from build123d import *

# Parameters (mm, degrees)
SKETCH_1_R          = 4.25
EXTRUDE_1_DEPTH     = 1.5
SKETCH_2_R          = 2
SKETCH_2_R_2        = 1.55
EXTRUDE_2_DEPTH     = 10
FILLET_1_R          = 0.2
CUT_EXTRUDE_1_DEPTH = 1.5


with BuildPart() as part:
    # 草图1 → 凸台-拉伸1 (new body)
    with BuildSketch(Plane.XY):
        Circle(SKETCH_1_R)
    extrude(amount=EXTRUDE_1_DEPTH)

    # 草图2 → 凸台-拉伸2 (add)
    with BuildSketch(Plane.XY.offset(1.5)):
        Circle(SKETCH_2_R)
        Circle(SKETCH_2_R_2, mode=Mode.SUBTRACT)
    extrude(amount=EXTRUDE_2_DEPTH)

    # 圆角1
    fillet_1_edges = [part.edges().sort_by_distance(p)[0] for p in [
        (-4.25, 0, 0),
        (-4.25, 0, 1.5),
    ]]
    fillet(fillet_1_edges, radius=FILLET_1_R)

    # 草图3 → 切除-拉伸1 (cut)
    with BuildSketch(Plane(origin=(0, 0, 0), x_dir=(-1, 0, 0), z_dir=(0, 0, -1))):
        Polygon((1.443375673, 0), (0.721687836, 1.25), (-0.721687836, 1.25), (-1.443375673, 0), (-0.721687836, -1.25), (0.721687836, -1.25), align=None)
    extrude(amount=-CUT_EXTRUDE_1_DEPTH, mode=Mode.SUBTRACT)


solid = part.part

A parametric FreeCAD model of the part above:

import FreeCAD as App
import Part
import Sketcher

V = App.Vector
Q = App.Units.Quantity


def edges_at(feature, points):
    """Names of the edges that pass closest to the given points."""
    edges = feature.Shape.Edges
    near = lambda p: min(range(len(edges)), key=lambda i: edges[i].distToShape(Part.Vertex(*p))[0])
    return sorted({f"Edge{near(p) + 1}" for p in points})

doc = App.newDocument("Part")
body = doc.addObject("PartDesign::Body", "Body")

# Sketch on XY plane
sketch1 = body.newObject("Sketcher::SketchObject", "Sketch")
sketch1.AttachmentSupport = (doc.getObject("XY_Plane"), [""])
sketch1.MapMode = "FlatFace"
sketch1.addGeometry(Part.Circle(V(0, 0, 0), V(0, 0, 1), 4.2), False)
sketch1.addConstraint([
    Sketcher.Constraint("Coincident", 0, 3, -1, 1),
    Sketcher.Constraint("Diameter", 0, 8.5),
])
pad1 = body.newObject("PartDesign::Pad", "Pad")
pad1.Profile = sketch1
pad1.Length = 1.5

# Sketch on XY plane
sketch2 = body.newObject("Sketcher::SketchObject", "Sketch001")
sketch2.AttachmentSupport = (doc.getObject("XY_Plane"), [""])
sketch2.MapMode = "FlatFace"
sketch2.AttachmentOffset = App.Placement(V(0, 0, 1.5), App.Rotation())
sketch2.addGeometry([
    Part.Circle(V(0, 0, 0), V(0, 0, 1), 2),
    Part.Circle(V(0, 0, 0), V(0, 0, 1), 1.6),
], False)
sketch2.addConstraint([
    Sketcher.Constraint("Coincident", 0, 3, -1, 1),
    Sketcher.Constraint("Coincident", 1, 3, -1, 1),
    Sketcher.Constraint("Diameter", 0, 4.0),
    Sketcher.Constraint("Diameter", 1, 3.1),
])
pad2 = body.newObject("PartDesign::Pad", "Pad001")
pad2.Profile = sketch2
pad2.Length = 10
doc.recompute()

fillet = body.newObject("PartDesign::Fillet", "Fillet")
fillet.Base = (pad2, edges_at(pad2, [(-4.25, 0, 0), (-4.25, 0, 1.5)]))
fillet.Radius = 0.2

# Sketch on XY plane
sketch3 = body.newObject("Sketcher::SketchObject", "Sketch002")
sketch3.AttachmentSupport = (doc.getObject("XY_Plane"), [""])
sketch3.MapMode = "FlatFace"
sketch3.addGeometry([
    Part.LineSegment(V(-1.4, 0, 0), V(-0.7, 1.2, 0)),  # 0
    Part.LineSegment(V(-0.7, 1.2, 0), V(0.7, 1.2, 0)),  # 1
    Part.LineSegment(V(0.7, 1.2, 0), V(1.4, 0, 0)),  # 2
    Part.LineSegment(V(1.4, 0, 0), V(0.7, -1.2, 0)),  # 3
    Part.LineSegment(V(0.7, -1.2, 0), V(-0.7, -1.2, 0)),  # 4
    Part.LineSegment(V(-0.7, -1.2, 0), V(-1.4, 0, 0)),  # 5
], False)
sketch3.addConstraint([
    Sketcher.Constraint("Coincident", 0, 2, 1, 1),
    Sketcher.Constraint("Coincident", 1, 2, 2, 1),
    Sketcher.Constraint("Coincident", 2, 2, 3, 1),
    Sketcher.Constraint("Coincident", 3, 2, 4, 1),
    Sketcher.Constraint("Coincident", 4, 2, 5, 1),
    Sketcher.Constraint("Coincident", 5, 2, 0, 1),
    Sketcher.Constraint("Horizontal", 1),
    Sketcher.Constraint("Horizontal", 4),
    Sketcher.Constraint("Symmetric", 0, 2, 3, 2, -1, 1),
    Sketcher.Constraint("Symmetric", 2, 2, 5, 2, -1, 1),
    Sketcher.Constraint("PointOnObject", 2, 2, -1),
    Sketcher.Constraint("Parallel", 2, 5),
    Sketcher.Constraint("Vertical", 1, 2, 3, 2),
    Sketcher.Constraint("Angle", 0, Q("60 deg")),
    Sketcher.Constraint("DistanceY", 3, 2, 1, 2, 2.5),
    Sketcher.Constraint("DistanceX", 1, 1, 1, 2, 1.443376),
])
pocket1 = body.newObject("PartDesign::Pocket", "Pocket")
pocket1.Profile = sketch3
pocket1.Length = 1.5
pocket1.Reversed = True

doc.recompute()
